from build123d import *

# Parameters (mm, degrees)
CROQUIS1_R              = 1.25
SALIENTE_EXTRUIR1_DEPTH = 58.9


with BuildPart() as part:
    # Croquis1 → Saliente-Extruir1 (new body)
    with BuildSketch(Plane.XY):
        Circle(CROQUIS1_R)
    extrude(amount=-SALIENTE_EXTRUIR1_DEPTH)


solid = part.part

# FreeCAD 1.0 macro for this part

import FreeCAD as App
import Part
import Sketcher

V = App.Vector

doc = App.newDocument("Part")
body = doc.addObject("PartDesign::Body", "Body")

# Sketch on XY plane
sketch1 = body.newObject("Sketcher::SketchObject", "Sketch")
sketch1.AttachmentSupport = (doc.getObject("XY_Plane"), [""])
sketch1.MapMode = "FlatFace"
sketch1.addGeometry(Part.Circle(V(0, 0, 0), V(0, 0, 1), 1.25), False)
sketch1.addConstraint([
    Sketcher.Constraint("Coincident", 0, 3, -1, 1),
    Sketcher.Constraint("Diameter", 0, 2.5),
])
pad1 = body.newObject("PartDesign::Pad", "Pad")
pad1.Profile = sketch1
pad1.Length = 58.9
pad1.Reversed = True

doc.recompute()
